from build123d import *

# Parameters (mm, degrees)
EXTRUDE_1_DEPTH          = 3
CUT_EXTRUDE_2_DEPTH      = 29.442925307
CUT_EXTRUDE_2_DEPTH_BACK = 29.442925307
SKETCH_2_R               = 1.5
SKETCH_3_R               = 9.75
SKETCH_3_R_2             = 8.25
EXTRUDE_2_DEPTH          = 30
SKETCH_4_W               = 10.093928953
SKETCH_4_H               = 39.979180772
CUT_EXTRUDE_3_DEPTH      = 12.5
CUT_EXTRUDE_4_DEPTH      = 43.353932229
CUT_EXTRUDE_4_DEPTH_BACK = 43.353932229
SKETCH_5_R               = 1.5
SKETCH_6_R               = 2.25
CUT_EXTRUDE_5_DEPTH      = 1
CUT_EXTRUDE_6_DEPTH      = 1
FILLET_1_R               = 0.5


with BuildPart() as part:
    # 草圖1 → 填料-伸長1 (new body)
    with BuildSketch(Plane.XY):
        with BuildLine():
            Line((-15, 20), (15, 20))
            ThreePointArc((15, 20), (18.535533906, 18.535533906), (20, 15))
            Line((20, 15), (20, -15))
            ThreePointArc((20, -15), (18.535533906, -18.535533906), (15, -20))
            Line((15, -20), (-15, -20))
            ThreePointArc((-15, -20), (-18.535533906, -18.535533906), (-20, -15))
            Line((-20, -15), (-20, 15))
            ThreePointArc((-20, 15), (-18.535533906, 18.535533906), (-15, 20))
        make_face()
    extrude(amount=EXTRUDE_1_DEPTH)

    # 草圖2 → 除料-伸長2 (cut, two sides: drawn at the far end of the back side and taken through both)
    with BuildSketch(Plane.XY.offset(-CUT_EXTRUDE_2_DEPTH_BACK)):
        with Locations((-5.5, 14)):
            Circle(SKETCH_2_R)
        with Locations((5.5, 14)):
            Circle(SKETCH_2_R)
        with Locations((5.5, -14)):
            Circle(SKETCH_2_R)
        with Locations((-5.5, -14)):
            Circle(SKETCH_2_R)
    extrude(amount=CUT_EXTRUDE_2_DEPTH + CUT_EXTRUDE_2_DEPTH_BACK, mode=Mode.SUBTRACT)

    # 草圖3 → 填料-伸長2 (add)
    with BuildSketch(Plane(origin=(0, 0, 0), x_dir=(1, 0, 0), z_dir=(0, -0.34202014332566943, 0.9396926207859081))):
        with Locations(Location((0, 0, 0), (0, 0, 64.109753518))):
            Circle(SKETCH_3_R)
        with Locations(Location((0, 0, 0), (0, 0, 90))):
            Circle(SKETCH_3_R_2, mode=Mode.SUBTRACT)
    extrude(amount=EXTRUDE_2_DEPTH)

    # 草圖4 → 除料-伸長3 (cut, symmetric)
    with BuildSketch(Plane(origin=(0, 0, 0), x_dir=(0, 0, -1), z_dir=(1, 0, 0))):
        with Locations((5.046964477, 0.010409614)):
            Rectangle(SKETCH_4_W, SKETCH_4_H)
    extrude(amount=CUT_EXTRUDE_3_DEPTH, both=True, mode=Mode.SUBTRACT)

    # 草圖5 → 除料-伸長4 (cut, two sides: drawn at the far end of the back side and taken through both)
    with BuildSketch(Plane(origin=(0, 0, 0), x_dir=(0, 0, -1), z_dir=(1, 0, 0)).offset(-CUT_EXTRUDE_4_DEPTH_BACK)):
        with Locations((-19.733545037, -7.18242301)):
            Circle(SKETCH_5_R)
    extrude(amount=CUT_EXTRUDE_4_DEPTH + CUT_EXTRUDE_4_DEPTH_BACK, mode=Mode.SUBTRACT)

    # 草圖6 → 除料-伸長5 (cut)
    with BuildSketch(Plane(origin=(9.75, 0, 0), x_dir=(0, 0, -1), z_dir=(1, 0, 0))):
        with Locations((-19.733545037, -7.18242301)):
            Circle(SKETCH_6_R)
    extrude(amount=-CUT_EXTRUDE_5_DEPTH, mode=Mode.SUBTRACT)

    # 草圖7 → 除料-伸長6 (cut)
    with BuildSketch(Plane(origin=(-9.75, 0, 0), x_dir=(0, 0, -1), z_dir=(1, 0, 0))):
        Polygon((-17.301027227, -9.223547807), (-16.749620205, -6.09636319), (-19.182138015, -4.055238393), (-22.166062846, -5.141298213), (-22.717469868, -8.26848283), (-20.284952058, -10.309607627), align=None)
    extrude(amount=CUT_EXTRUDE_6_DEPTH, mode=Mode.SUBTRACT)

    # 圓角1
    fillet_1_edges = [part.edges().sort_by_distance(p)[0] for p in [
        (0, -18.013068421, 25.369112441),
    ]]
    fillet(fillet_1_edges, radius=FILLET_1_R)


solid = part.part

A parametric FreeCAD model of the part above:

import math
import FreeCAD as App
import Part
import Sketcher
from FreeCAD import Vector
Q = App.Units.Quantity


def edges_at(feature, points):
    """Names of the edges that pass closest to the given points."""
    edges = feature.Shape.Edges
    near = lambda p: min(range(len(edges)), key=lambda i: edges[i].distToShape(Part.Vertex(*p))[0])
    return sorted({f"Edge{near(p) + 1}" for p in points})

doc = App.newDocument("Part")
body = doc.addObject("PartDesign::Body", "Body")

sketch1 = body.newObject("Sketcher::SketchObject", "Sketch")
sketch1.AttachmentSupport = (doc.getObject("XY_Plane"), [""])
sketch1.MapMode = "FlatFace"
sketch1.addGeometry([
    Part.LineSegment(Vector(15, 20, 0), Vector(-15, 20, 0)),
    Part.ArcOfCircle(Part.Circle(Vector(-15, 15, 0), Vector(0, 0, 1), 5), math.radians(90), math.radians(180)),
    Part.LineSegment(Vector(-20, 15, 0), Vector(-20, -15, 0)),
    Part.ArcOfCircle(Part.Circle(Vector(-15, -15, 0), Vector(0, 0, 1), 5), math.radians(180), math.radians(270)),
    Part.LineSegment(Vector(-15, -20, 0), Vector(15, -20, 0)),
    Part.ArcOfCircle(Part.Circle(Vector(15, -15, 0), Vector(0, 0, 1), 5), math.radians(-90), math.radians(0)),
    Part.LineSegment(Vector(20, -15, 0), Vector(20, 15, 0)),
    Part.ArcOfCircle(Part.Circle(Vector(15, 15, 0), Vector(0, 0, 1), 5), math.radians(0), math.radians(90)),
], False)
sketch1.addConstraint([
    Sketcher.Constraint("Tangent", 0, 2, 1, 1),
    Sketcher.Constraint("Tangent", 1, 2, 2, 1),
    Sketcher.Constraint("Tangent", 2, 2, 3, 1),
    Sketcher.Constraint("Tangent", 3, 2, 4, 1),
    Sketcher.Constraint("Tangent", 4, 2, 5, 1),
    Sketcher.Constraint("Tangent", 5, 2, 6, 1),
    Sketcher.Constraint("Tangent", 6, 2, 7, 1),
    Sketcher.Constraint("Tangent", 7, 2, 0, 1),
    Sketcher.Constraint("Horizontal", 0),
    Sketcher.Constraint("Vertical", 2),
    Sketcher.Constraint("Horizontal", 4),
    Sketcher.Constraint("Vertical", 6),
    Sketcher.Constraint("Equal", 1, 3),
    Sketcher.Constraint("Equal", 3, 5),
    Sketcher.Constraint("Equal", 5, 7),
    Sketcher.Constraint("Symmetric", 1, 3, 5, 3, -1, 1),
    Sketcher.Constraint("Equal", 4, 2),
    Sketcher.Constraint("Radius", 1, Q("5 mm")),
    Sketcher.Constraint("DistanceX", 0, 2, 0, 1, Q("30 mm")),
])
pad1 = body.newObject("PartDesign::Pad", "Pad")
pad1.Profile = sketch1
pad1.Length = 3

sketch2 = body.newObject("Sketcher::SketchObject", "Sketch001")
sketch2.AttachmentSupport = (doc.getObject("XY_Plane"), [""])
sketch2.MapMode = "FlatFace"
sketch2.addGeometry([
    Part.Circle(Vector(-5.5, 14, 0), Vector(0, 0, 1), 1.5),
    Part.Circle(Vector(5.5, 14, 0), Vector(0, 0, 1), 1.5),
    Part.Circle(Vector(5.5, -14, 0), Vector(0, 0, 1), 1.5),
    Part.Circle(Vector(-5.5, -14, 0), Vector(0, 0, 1), 1.5),
], False)
sketch2.addConstraint([
    Sketcher.Constraint("Equal", 0, 1),
    Sketcher.Constraint("Equal", 1, 2),
    Sketcher.Constraint("Equal", 2, 3),
    Sketcher.Constraint("Symmetric", 0, 3, 2, 3, -1, 1),
    Sketcher.Constraint("Symmetric", 1, 3, 3, 3, -1, 1),
    Sketcher.Constraint("Symmetric", 0, 3, 1, 3, -2),
    Sketcher.Constraint("Diameter", 0, Q("3 mm")),
    Sketcher.Constraint("DistanceY", -1, 1, 0, 3, Q("14 mm")),
    Sketcher.Constraint("DistanceX", 0, 3, 1, 3, Q("11 mm")),
])
pocket1 = body.newObject("PartDesign::Pocket", "Pocket")
pocket1.Profile = sketch2
pocket1.Type = "ThroughAll"
pocket1.Midplane = True

sketch3 = body.newObject("Sketcher::SketchObject", "Sketch002")
sketch3.Placement = App.Placement(Vector(0, 0, 0), App.Rotation(Vector(1, 0, 0), Vector(0, 0.939692621, 0.342020143), Vector(0, -0.342020143, 0.939692621), "ZXY"))
sketch3.addGeometry([
    Part.Circle(Vector(0, 0, 0), Vector(0, 0, 1), 10),
    Part.Circle(Vector(0, 0, 0), Vector(0, 0, 1), 8),
], False)
sketch3.addConstraint([
    Sketcher.Constraint("Coincident", 0, 3, -1, 1),
    Sketcher.Constraint("Coincident", 1, 3, -1, 1),
    Sketcher.Constraint("Diameter", 0, Q("19.5 mm")),
    Sketcher.Constraint("Diameter", 1, Q("16.5 mm")),
])
pad2 = body.newObject("PartDesign::Pad", "Pad001")
pad2.Profile = sketch3
pad2.Length = 30

sketch4 = body.newObject("Sketcher::SketchObject", "Sketch003")
sketch4.AttachmentSupport = (doc.getObject("YZ_Plane"), [""])
sketch4.MapMode = "FlatFace"
sketch4.addGeometry([
    Part.LineSegment(Vector(20, 0, 0), Vector(-20, 0, 0)),
    Part.LineSegment(Vector(-20, 0, 0), Vector(-20, -10, 0)),
    Part.LineSegment(Vector(-20, -10, 0), Vector(20, -10, 0)),
    Part.LineSegment(Vector(20, -10, 0), Vector(20, 0, 0)),
], False)
sketch4.addConstraint([
    Sketcher.Constraint("Coincident", 0, 2, 1, 1),
    Sketcher.Constraint("Coincident", 1, 2, 2, 1),
    Sketcher.Constraint("Coincident", 2, 2, 3, 1),
    Sketcher.Constraint("Coincident", 3, 2, 0, 1),
    Sketcher.Constraint("Horizontal", 0),
    Sketcher.Constraint("Vertical", 1),
    Sketcher.Constraint("Horizontal", 2),
    Sketcher.Constraint("Vertical", 3),
    Sketcher.Constraint("PointOnObject", 0, 2, -1),
    Sketcher.Constraint("DistanceX", -1, 1, 2, 2, Q("20 mm")),
    Sketcher.Constraint("DistanceX", 0, 2, 0, 1, Q("39.979181 mm")),
    Sketcher.Constraint("DistanceY", 1, 2, 1, 1, Q("10.093929 mm")),
])
pocket2 = body.newObject("PartDesign::Pocket", "Pocket001")
pocket2.Profile = sketch4
pocket2.Length = 25
pocket2.Midplane = True

sketch5 = body.newObject("Sketcher::SketchObject", "Sketch004")
sketch5.AttachmentSupport = (doc.getObject("YZ_Plane"), [""])
sketch5.MapMode = "FlatFace"
sketch5.addGeometry(Part.Circle(Vector(-7.2, 19.7, 0), Vector(0, 0, 1), 1.5), False)
sketch5.addConstraint([
    Sketcher.Constraint("Diameter", 0, Q("3 mm")),
    Sketcher.Constraint("DistanceX", 0, 3, -1, 1, Q("7.182423 mm")),
    Sketcher.Constraint("DistanceY", -1, 1, 0, 3, Q("19.733545 mm")),
])
pocket3 = body.newObject("PartDesign::Pocket", "Pocket002")
pocket3.Profile = sketch5
pocket3.Type = "ThroughAll"
pocket3.Midplane = True

sketch6 = body.newObject("Sketcher::SketchObject", "Sketch005")
sketch6.AttachmentSupport = (doc.getObject("YZ_Plane"), [""])
sketch6.MapMode = "FlatFace"
sketch6.AttachmentOffset = App.Placement(Vector(0, 0, 9.75), App.Rotation())
sketch6.addGeometry(Part.Circle(Vector(-7.2, 19.7, 0), Vector(0, 0, 1), 2.2), False)
sketch6.addConstraint([
    Sketcher.Constraint("Diameter", 0, Q("4.5 mm")),
    Sketcher.Constraint("DistanceX", 0, 3, -1, 1, Q("7.182423 mm")),
    Sketcher.Constraint("DistanceY", -1, 1, 0, 3, Q("19.733545 mm")),
])
pocket4 = body.newObject("PartDesign::Pocket", "Pocket003")
pocket4.Profile = sketch6
pocket4.Length = 1

sketch7 = body.newObject("Sketcher::SketchObject", "Sketch006")
sketch7.AttachmentSupport = (doc.getObject("YZ_Plane"), [""])
sketch7.MapMode = "FlatFace"
sketch7.AttachmentOffset = App.Placement(Vector(0, 0, -9.75), App.Rotation())
sketch7.addGeometry([
    Part.LineSegment(Vector(-9.2, 17.3, 0), Vector(-6.1, 16.7, 0)),
    Part.LineSegment(Vector(-6.1, 16.7, 0), Vector(-4.1, 19.2, 0)),
    Part.LineSegment(Vector(-4.1, 19.2, 0), Vector(-5.1, 22.2, 0)),
    Part.LineSegment(Vector(-5.1, 22.2, 0), Vector(-8.3, 22.7, 0)),
    Part.LineSegment(Vector(-8.3, 22.7, 0), Vector(-10.3, 20.3, 0)),
    Part.LineSegment(Vector(-10.3, 20.3, 0), Vector(-9.2, 17.3, 0)),
], False)
sketch7.addConstraint([
    Sketcher.Constraint("Coincident", 0, 2, 1, 1),
    Sketcher.Constraint("Coincident", 1, 2, 2, 1),
    Sketcher.Constraint("Coincident", 2, 2, 3, 1),
    Sketcher.Constraint("Coincident", 3, 2, 4, 1),
    Sketcher.Constraint("Coincident", 4, 2, 5, 1),
    Sketcher.Constraint("Coincident", 5, 2, 0, 1),
    Sketcher.Constraint("Parallel", 0, 3),
    Sketcher.Constraint("Parallel", 1, 4),
    Sketcher.Constraint("Parallel", 2, 5),
    Sketcher.Constraint("Equal", 0, 1),
    Sketcher.Constraint("Equal", 1, 2),
    Sketcher.Constraint("Equal", 2, 3),
    Sketcher.Constraint("Angle", 0, Q("-10 deg")),
    Sketcher.Constraint("Angle", 1, Q("50 deg")),
    Sketcher.Constraint("Angle", 2, Q("110 deg")),
    Sketcher.Constraint("DistanceX", 2, 2, -1, 1, Q("5.141298 mm")),
    Sketcher.Constraint("DistanceY", -1, 1, 0, 2, Q("16.74962 mm")),
    Sketcher.Constraint("DistanceX", 1, 2, -1, 1, Q("4.055238 mm")),
])
pocket5 = body.newObject("PartDesign::Pocket", "Pocket004")
pocket5.Profile = sketch7
pocket5.Length = 1
pocket5.Reversed = True
doc.recompute()

fillet = body.newObject("PartDesign::Fillet", "Fillet")
fillet.Base = (pocket5, edges_at(pocket5, [(0, -18.013, 25.369)]))
fillet.Radius = 0.5

doc.recompute()
